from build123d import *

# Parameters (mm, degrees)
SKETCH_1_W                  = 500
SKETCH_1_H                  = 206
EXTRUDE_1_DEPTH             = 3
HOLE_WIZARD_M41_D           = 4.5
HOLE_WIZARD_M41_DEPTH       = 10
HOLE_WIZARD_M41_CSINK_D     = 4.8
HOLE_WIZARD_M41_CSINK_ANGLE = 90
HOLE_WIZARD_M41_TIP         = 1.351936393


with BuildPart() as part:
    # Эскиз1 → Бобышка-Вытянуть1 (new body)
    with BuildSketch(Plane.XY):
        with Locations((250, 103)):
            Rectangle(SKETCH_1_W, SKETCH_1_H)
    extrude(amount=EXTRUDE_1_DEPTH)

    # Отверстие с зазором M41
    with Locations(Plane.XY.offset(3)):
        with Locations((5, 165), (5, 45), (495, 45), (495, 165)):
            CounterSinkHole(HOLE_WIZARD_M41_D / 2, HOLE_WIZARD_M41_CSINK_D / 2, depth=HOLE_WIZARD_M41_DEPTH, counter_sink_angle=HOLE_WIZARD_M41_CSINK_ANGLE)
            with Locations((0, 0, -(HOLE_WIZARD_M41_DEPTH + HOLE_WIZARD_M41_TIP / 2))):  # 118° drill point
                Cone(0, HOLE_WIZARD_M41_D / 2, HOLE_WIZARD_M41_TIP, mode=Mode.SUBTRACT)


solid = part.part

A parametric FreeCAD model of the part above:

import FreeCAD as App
import Part
import Sketcher
from FreeCAD import Vector
Q = App.Units.Quantity


def add_polygon(sketch, points):
    """Adds a closed chain of lines whose ends are joined by coincident constraints."""
    first, n = sketch.GeometryCount, len(points)
    for a, b in zip(points, points[1:] + points[:1]):
        sketch.addGeometry(Part.LineSegment(App.Vector(*a, 0), App.Vector(*b, 0)), False)
    for i in range(n):
        sketch.addConstraint(Sketcher.Constraint("Coincident", first + i, 2, first + (i + 1) % n, 1))

doc = App.newDocument("Part")
body = doc.addObject("PartDesign::Body", "Body")

sketch1 = doc.addObject("Sketcher::SketchObject", "Sketch")
body.addObject(sketch1)
sketch1.AttachmentSupport = (doc.XY_Plane, [""])
sketch1.MapMode = "FlatFace"
add_polygon(sketch1, [(0, 206), (0, 0), (500, 0), (500, 206)])
sketch1.addConstraint(Sketcher.Constraint("Vertical", 0))
sketch1.addConstraint(Sketcher.Constraint("Horizontal", 1))
sketch1.addConstraint(Sketcher.Constraint("Vertical", 2))
sketch1.addConstraint(Sketcher.Constraint("Horizontal", 3))
sketch1.addConstraint(Sketcher.Constraint("Coincident", 0, 2, -1, 1))
sketch1.addConstraint(Sketcher.Constraint("DistanceX", 1, 1, 1, 2, Q("500 mm")))
sketch1.addConstraint(Sketcher.Constraint("DistanceY", 0, 2, 0, 1, Q("206 mm")))
pad1 = doc.addObject("PartDesign::Pad", "Pad")
body.addObject(pad1)
pad1.Profile = sketch1
pad1.Length = 3

sketch2 = doc.addObject("Sketcher::SketchObject", "Sketch001")
body.addObject(sketch2)
sketch2.AttachmentSupport = (doc.XY_Plane, [""])
sketch2.MapMode = "FlatFace"
sketch2.AttachmentOffset = App.Placement(Vector(0, 0, 3), App.Rotation())
sketch2.addGeometry(Part.Circle(Vector(5, 165, 0), Vector(0, 0, 1), 2.25), False)
sketch2.addGeometry(Part.Circle(Vector(5, 45, 0), Vector(0, 0, 1), 2.25), False)
sketch2.addGeometry(Part.Circle(Vector(495, 45, 0), Vector(0, 0, 1), 2.25), False)
sketch2.addGeometry(Part.Circle(Vector(495, 165, 0), Vector(0, 0, 1), 2.25), False)
sketch2.addConstraint(Sketcher.Constraint("Equal", 0, 1))
sketch2.addConstraint(Sketcher.Constraint("Equal", 1, 2))
sketch2.addConstraint(Sketcher.Constraint("Equal", 2, 3))
sketch2.addConstraint(Sketcher.Constraint("Horizontal", 1, 3, 2, 3))
sketch2.addConstraint(Sketcher.Constraint("Horizontal", 0, 3, 3, 3))
sketch2.addConstraint(Sketcher.Constraint("Vertical", 0, 3, 1, 3))
sketch2.addConstraint(Sketcher.Constraint("Vertical", 2, 3, 3, 3))
sketch2.addConstraint(Sketcher.Constraint("Diameter", 0, Q("4.5 mm")))
sketch2.addConstraint(Sketcher.Constraint("DistanceX", -1, 1, 0, 3, Q("5 mm")))
sketch2.addConstraint(Sketcher.Constraint("DistanceY", -1, 1, 0, 3, Q("165 mm")))
sketch2.addConstraint(Sketcher.Constraint("DistanceY", -1, 1, 1, 3, Q("45 mm")))
sketch2.addConstraint(Sketcher.Constraint("DistanceX", -1, 1, 2, 3, Q("495 mm")))
doc.recompute()
hole = doc.addObject("PartDesign::Hole", "Hole")
body.addObject(hole)
hole.Profile = sketch2
hole.ThreadType = "None"
hole.Diameter = 4.5
hole.DepthType = "Dimension"
hole.Depth = 10
hole.DrillPoint = "Angled"
hole.DrillPointAngle = 118
hole.HoleCutType = "Countersink"
hole.HoleCutDiameter = 4.8
hole.HoleCutCountersinkAngle = 90

doc.recompute()
